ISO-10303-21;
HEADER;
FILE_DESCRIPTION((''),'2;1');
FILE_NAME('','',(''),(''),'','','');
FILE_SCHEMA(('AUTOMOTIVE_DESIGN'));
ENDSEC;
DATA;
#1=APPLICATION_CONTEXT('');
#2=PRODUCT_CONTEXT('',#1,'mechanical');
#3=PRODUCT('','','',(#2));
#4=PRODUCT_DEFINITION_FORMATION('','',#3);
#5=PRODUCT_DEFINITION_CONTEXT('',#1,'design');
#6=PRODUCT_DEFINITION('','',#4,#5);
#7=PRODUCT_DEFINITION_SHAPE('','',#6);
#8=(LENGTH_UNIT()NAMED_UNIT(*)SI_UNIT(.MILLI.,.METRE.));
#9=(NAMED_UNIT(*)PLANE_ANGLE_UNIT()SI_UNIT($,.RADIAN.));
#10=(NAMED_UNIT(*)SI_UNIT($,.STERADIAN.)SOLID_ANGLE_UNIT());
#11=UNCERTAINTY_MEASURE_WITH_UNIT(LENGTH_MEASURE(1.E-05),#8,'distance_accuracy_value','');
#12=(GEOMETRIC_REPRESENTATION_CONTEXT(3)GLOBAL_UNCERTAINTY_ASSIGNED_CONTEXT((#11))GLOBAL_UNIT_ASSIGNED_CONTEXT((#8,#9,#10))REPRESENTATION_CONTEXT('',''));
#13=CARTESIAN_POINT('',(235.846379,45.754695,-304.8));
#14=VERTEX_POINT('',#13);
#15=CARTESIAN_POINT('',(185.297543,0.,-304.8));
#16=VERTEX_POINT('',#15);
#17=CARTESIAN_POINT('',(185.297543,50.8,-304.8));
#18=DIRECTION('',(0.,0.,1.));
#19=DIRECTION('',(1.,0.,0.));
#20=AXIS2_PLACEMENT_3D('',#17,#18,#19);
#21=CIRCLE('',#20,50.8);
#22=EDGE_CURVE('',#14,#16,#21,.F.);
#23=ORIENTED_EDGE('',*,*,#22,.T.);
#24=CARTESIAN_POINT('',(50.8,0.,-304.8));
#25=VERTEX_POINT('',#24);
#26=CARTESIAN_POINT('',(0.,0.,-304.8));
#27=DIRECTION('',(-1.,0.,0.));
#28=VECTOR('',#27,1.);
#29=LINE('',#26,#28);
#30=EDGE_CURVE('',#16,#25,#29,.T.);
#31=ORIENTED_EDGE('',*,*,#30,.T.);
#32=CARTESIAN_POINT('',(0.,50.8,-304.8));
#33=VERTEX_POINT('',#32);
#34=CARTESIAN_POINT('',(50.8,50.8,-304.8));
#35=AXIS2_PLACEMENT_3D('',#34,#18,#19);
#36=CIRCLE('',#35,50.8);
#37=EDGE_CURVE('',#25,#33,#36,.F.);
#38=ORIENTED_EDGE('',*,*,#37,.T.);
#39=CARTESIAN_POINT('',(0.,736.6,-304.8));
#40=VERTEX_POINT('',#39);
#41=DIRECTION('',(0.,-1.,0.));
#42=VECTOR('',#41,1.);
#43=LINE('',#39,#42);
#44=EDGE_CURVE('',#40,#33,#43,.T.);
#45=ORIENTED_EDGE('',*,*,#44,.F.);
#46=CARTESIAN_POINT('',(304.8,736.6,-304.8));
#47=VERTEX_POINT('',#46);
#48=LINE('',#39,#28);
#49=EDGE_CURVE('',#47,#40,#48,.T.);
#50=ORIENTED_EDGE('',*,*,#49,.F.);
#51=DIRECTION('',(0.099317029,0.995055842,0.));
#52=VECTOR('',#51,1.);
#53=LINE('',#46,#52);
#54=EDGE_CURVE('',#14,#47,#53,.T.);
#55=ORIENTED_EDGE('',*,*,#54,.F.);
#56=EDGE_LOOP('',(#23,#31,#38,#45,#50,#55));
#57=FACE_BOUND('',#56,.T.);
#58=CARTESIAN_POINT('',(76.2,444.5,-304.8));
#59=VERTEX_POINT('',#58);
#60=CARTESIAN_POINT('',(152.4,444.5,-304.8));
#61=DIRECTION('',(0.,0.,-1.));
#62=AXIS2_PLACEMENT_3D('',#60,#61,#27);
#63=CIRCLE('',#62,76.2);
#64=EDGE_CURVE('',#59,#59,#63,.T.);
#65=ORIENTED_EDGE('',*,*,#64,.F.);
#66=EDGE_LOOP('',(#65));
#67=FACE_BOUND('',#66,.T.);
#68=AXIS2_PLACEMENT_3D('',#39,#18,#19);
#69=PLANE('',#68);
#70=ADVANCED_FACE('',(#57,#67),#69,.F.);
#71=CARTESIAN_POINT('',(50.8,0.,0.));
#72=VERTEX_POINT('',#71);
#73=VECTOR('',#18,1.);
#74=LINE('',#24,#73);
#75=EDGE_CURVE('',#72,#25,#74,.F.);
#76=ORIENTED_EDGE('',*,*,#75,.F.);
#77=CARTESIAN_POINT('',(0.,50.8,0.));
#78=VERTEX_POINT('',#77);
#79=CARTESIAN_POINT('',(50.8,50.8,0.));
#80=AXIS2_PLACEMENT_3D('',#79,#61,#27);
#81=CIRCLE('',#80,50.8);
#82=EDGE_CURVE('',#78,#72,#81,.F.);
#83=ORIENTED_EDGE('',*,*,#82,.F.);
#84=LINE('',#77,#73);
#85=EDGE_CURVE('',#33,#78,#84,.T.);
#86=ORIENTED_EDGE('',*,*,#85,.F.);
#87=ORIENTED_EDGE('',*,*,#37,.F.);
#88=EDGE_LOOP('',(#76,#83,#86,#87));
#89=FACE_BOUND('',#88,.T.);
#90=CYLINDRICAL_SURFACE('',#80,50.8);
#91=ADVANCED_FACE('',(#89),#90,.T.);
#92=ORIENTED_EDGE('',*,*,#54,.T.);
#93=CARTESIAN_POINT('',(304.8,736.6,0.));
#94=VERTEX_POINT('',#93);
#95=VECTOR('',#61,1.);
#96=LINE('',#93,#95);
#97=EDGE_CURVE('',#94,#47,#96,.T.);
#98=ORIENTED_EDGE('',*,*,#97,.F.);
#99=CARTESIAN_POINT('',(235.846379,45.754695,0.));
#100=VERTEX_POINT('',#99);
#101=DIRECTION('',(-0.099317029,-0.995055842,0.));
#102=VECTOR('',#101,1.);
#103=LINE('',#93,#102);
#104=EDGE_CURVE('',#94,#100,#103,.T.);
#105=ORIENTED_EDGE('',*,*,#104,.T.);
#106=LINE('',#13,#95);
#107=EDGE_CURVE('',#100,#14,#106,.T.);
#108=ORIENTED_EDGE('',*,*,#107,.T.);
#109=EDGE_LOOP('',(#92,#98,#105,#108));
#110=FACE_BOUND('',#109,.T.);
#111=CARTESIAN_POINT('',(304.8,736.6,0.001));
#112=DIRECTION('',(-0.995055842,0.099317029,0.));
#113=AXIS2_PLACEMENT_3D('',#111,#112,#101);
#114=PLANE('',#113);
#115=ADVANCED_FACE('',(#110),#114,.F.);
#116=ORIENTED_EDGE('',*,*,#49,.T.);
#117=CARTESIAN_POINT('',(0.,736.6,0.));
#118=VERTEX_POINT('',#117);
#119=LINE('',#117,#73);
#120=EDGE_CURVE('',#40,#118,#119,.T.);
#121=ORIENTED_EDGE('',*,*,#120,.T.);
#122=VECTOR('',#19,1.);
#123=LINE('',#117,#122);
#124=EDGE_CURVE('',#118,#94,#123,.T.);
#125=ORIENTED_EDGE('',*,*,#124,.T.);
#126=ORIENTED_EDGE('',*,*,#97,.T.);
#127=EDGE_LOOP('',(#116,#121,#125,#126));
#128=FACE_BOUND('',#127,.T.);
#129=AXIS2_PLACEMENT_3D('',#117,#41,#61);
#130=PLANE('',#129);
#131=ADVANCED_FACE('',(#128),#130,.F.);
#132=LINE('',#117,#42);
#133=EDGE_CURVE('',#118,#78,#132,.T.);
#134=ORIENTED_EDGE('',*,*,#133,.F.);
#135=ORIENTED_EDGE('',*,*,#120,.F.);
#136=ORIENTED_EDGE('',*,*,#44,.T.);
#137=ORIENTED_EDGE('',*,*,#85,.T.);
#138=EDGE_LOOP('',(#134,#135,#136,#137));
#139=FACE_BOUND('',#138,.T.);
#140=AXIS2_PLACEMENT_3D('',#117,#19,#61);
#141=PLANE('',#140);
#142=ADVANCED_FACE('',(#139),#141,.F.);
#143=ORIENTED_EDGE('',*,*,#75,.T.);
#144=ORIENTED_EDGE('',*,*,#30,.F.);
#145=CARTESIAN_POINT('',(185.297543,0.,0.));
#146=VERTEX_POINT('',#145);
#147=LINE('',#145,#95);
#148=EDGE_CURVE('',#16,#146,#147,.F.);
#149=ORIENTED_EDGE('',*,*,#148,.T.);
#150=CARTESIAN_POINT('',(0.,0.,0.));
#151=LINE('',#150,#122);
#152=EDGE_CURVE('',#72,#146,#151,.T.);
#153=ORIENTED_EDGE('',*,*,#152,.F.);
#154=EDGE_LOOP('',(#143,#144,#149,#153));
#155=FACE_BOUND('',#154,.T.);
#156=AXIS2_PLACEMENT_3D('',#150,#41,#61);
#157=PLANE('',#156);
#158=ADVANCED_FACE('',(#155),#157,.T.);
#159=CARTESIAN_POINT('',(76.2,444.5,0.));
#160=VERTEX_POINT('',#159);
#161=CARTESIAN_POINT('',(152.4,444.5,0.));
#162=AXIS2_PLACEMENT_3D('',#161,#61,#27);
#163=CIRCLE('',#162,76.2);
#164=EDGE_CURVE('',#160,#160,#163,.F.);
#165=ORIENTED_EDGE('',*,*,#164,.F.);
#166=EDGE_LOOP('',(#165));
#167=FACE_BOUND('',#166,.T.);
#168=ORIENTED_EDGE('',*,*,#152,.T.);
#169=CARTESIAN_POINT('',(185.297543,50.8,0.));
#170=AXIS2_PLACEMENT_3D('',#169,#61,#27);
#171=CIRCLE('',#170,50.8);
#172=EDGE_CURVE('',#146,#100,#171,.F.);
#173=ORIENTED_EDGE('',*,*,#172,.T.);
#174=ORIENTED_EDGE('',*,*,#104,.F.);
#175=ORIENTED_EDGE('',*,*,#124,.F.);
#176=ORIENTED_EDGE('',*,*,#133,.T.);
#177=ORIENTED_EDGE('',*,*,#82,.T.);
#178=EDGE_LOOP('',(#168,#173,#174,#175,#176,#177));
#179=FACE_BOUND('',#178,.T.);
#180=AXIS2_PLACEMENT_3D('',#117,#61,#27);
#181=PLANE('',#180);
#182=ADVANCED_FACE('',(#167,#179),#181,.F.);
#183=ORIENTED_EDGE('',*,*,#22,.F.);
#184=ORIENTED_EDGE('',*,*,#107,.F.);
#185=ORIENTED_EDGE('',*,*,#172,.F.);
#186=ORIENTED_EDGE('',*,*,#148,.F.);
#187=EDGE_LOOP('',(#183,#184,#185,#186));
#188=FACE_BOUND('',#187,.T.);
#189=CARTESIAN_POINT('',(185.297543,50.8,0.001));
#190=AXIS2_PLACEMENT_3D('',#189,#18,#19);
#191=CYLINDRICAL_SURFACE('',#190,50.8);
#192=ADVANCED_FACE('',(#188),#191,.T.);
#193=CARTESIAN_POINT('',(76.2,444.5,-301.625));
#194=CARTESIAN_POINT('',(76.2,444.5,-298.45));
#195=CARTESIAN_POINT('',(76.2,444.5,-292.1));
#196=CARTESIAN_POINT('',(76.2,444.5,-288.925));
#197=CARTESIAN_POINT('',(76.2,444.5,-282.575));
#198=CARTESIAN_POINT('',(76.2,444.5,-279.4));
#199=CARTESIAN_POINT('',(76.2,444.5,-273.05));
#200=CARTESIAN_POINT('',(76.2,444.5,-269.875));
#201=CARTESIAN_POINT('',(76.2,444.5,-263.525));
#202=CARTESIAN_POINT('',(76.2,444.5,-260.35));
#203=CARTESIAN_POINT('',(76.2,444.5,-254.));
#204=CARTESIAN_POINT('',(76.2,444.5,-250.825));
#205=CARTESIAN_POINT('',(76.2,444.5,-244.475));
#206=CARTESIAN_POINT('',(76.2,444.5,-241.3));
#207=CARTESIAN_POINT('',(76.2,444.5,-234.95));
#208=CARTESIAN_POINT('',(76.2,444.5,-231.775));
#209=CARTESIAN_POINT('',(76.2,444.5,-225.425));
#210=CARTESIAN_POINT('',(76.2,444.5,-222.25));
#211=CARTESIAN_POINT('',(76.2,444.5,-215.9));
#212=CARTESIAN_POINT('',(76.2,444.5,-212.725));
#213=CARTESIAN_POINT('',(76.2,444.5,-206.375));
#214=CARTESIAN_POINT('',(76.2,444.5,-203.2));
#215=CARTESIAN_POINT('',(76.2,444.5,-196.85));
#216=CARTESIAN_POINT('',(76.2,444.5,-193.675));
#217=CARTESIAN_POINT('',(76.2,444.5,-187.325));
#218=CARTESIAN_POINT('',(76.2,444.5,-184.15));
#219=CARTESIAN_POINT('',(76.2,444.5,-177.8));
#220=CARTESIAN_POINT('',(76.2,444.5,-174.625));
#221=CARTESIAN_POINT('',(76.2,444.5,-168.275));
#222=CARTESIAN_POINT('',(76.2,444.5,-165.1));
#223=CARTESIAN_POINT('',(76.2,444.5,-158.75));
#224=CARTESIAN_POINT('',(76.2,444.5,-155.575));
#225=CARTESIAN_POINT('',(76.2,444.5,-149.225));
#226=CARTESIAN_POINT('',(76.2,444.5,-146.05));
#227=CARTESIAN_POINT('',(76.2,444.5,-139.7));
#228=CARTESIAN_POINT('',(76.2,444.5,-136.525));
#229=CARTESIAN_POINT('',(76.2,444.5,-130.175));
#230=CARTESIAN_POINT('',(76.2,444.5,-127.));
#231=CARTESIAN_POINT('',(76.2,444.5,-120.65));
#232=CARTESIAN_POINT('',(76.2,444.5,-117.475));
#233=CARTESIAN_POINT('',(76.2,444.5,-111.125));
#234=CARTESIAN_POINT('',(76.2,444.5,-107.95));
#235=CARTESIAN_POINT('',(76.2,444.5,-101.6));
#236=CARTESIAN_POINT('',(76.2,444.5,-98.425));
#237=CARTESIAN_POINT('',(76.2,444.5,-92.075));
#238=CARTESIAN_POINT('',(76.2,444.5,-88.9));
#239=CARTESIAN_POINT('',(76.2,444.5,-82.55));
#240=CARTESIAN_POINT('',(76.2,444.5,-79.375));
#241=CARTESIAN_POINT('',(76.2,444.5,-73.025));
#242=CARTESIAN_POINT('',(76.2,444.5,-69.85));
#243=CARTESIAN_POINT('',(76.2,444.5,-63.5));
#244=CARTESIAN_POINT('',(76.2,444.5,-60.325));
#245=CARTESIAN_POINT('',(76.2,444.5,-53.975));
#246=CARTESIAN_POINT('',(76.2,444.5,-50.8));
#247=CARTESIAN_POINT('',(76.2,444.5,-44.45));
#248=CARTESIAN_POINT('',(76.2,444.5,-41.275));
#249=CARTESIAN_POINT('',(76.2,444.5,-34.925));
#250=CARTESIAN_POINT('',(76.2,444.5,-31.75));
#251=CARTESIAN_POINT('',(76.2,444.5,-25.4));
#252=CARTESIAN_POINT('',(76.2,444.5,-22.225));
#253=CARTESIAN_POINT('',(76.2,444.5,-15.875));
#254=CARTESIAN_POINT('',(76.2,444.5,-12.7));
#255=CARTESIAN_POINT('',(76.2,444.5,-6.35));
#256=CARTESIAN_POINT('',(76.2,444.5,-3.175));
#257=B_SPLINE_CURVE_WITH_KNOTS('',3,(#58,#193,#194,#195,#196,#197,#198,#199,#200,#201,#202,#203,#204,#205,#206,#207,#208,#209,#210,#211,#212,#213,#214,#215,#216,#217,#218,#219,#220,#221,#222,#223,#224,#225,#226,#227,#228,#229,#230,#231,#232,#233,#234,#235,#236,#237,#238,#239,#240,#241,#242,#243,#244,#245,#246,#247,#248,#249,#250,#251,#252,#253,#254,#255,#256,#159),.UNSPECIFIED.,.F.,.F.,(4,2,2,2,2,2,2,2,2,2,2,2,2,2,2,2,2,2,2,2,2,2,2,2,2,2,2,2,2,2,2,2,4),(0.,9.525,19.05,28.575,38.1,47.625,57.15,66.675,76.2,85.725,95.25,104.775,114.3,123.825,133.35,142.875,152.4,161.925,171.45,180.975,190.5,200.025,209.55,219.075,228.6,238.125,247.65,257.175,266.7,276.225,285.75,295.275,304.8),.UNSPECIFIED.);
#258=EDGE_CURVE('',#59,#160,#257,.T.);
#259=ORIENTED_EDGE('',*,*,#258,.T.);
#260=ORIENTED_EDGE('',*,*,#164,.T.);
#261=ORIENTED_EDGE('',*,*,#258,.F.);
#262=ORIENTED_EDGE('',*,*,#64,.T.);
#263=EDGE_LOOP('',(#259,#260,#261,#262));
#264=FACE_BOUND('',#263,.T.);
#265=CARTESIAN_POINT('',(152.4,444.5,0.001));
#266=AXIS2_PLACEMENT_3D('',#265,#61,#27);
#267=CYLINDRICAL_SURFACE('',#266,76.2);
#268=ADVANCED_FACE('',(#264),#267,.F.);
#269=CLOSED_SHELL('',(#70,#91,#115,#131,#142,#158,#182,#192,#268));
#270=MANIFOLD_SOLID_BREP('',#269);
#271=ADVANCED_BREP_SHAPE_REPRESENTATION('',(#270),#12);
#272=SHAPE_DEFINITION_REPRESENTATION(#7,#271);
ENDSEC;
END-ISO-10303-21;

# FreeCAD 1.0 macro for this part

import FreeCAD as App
import Part
import Sketcher

V = App.Vector
Q = App.Units.Quantity


def edges_at(feature, points):
    """Names of the edges that pass closest to the given points."""
    edges = feature.Shape.Edges
    near = lambda p: min(range(len(edges)), key=lambda i: edges[i].distToShape(Part.Vertex(*p))[0])
    return sorted({f"Edge{near(p) + 1}" for p in points})

doc = App.newDocument("Part")
body = doc.addObject("PartDesign::Body", "Body")

# Sketch on XZ plane
sketch1 = doc.addObject("Sketcher::SketchObject", "Sketch")
body.addObject(sketch1)
sketch1.AttachmentSupport = (doc.XZ_Plane, [""])
sketch1.MapMode = "FlatFace"
sketch1.addGeometry(Part.LineSegment(V(0, -305, 0), V(0, 0, 0)), False)
sketch1.addGeometry(Part.LineSegment(V(0, 0, 0), V(305, 0, 0)), False)
sketch1.addGeometry(Part.LineSegment(V(305, 0, 0), V(305, -305, 0)), False)
sketch1.addGeometry(Part.LineSegment(V(305, -305, 0), V(0, -305, 0)), False)
sketch1.addConstraint(Sketcher.Constraint("Coincident", 0, 2, 1, 1))
sketch1.addConstraint(Sketcher.Constraint("Coincident", 1, 2, 2, 1))
sketch1.addConstraint(Sketcher.Constraint("Coincident", 2, 2, 3, 1))
sketch1.addConstraint(Sketcher.Constraint("Coincident", 3, 2, 0, 1))
sketch1.addConstraint(Sketcher.Constraint("Vertical", 0))
sketch1.addConstraint(Sketcher.Constraint("Horizontal", 1))
sketch1.addConstraint(Sketcher.Constraint("Vertical", 2))
sketch1.addConstraint(Sketcher.Constraint("Horizontal", 3))
sketch1.addConstraint(Sketcher.Constraint("Coincident", 0, 2, -1, 1))
sketch1.addConstraint(Sketcher.Constraint("Equal", 3, 0))
sketch1.addConstraint(Sketcher.Constraint("DistanceX", 1, 1, 1, 2, Q("12 in")))
pad1 = doc.addObject("PartDesign::Pad", "Pad")
body.addObject(pad1)
pad1.Profile = sketch1
pad1.Length = Q("29 in")
pad1.Reversed = True

# Sketch on XY plane
sketch2 = doc.addObject("Sketcher::SketchObject", "Sketch001")
body.addObject(sketch2)
sketch2.AttachmentSupport = (doc.XY_Plane, [""])
sketch2.MapMode = "FlatFace"
sketch2.AttachmentOffset = App.Placement(V(0, 0, -12 * 25.4), App.Rotation())
sketch2.addGeometry(Part.Circle(V(152, 444, 0), V(0, 0, 1), 76), False)
sketch2.addConstraint(Sketcher.Constraint("Diameter", 0, Q("6 in")))
sketch2.addConstraint(Sketcher.Constraint("DistanceX", -1, 1, 0, 3, Q("6 in")))
sketch2.addConstraint(Sketcher.Constraint("DistanceY", -1, 1, 0, 3, Q("17.5 in")))
pocket1 = doc.addObject("PartDesign::Pocket", "Pocket")
body.addObject(pocket1)
pocket1.Profile = sketch2
pocket1.Type = "UpToFirst"
pocket1.Reversed = True

# Sketch on XY plane
sketch3 = doc.addObject("Sketcher::SketchObject", "Sketch002")
body.addObject(sketch3)
sketch3.AttachmentSupport = (doc.XY_Plane, [""])
sketch3.MapMode = "FlatFace"
sketch3.AttachmentOffset = App.Placement(V(0, 0, -12 * 25.4), App.Rotation())
sketch3.addGeometry(Part.LineSegment(V(231, 0, 0), V(305, 737, 0)), False)
sketch3.addGeometry(Part.LineSegment(V(305, 737, 0), V(305, 0, 0)), False)
sketch3.addGeometry(Part.LineSegment(V(305, 0, 0), V(231, 0, 0)), False)
sketch3.addConstraint(Sketcher.Constraint("Coincident", 0, 2, 1, 1))
sketch3.addConstraint(Sketcher.Constraint("Coincident", 1, 2, 2, 1))
sketch3.addConstraint(Sketcher.Constraint("Coincident", 2, 2, 0, 1))
sketch3.addConstraint(Sketcher.Constraint("Vertical", 1))
sketch3.addConstraint(Sketcher.Constraint("Horizontal", 2))
sketch3.addConstraint(Sketcher.Constraint("PointOnObject", 1, 2, -1))
sketch3.addConstraint(Sketcher.Constraint("DistanceY", 1, 2, 1, 1, Q("29 in")))
sketch3.addConstraint(Sketcher.Constraint("DistanceX", -1, 1, 0, 2, Q("12 in")))
sketch3.addConstraint(Sketcher.Constraint("DistanceX", 2, 2, 2, 1, 73.52042))
pocket2 = doc.addObject("PartDesign::Pocket", "Pocket001")
body.addObject(pocket2)
pocket2.Profile = sketch3
pocket2.Type = "UpToFirst"
pocket2.Reversed = True
doc.recompute()

fillet = doc.addObject("PartDesign::Fillet", "Fillet")
body.addObject(fillet)
fillet.Base = (pocket2, edges_at(pocket2, [(231.28, 0, -152.4), (0, 0, -152.4)]))
fillet.Radius = Q("2 in")

doc.recompute()
